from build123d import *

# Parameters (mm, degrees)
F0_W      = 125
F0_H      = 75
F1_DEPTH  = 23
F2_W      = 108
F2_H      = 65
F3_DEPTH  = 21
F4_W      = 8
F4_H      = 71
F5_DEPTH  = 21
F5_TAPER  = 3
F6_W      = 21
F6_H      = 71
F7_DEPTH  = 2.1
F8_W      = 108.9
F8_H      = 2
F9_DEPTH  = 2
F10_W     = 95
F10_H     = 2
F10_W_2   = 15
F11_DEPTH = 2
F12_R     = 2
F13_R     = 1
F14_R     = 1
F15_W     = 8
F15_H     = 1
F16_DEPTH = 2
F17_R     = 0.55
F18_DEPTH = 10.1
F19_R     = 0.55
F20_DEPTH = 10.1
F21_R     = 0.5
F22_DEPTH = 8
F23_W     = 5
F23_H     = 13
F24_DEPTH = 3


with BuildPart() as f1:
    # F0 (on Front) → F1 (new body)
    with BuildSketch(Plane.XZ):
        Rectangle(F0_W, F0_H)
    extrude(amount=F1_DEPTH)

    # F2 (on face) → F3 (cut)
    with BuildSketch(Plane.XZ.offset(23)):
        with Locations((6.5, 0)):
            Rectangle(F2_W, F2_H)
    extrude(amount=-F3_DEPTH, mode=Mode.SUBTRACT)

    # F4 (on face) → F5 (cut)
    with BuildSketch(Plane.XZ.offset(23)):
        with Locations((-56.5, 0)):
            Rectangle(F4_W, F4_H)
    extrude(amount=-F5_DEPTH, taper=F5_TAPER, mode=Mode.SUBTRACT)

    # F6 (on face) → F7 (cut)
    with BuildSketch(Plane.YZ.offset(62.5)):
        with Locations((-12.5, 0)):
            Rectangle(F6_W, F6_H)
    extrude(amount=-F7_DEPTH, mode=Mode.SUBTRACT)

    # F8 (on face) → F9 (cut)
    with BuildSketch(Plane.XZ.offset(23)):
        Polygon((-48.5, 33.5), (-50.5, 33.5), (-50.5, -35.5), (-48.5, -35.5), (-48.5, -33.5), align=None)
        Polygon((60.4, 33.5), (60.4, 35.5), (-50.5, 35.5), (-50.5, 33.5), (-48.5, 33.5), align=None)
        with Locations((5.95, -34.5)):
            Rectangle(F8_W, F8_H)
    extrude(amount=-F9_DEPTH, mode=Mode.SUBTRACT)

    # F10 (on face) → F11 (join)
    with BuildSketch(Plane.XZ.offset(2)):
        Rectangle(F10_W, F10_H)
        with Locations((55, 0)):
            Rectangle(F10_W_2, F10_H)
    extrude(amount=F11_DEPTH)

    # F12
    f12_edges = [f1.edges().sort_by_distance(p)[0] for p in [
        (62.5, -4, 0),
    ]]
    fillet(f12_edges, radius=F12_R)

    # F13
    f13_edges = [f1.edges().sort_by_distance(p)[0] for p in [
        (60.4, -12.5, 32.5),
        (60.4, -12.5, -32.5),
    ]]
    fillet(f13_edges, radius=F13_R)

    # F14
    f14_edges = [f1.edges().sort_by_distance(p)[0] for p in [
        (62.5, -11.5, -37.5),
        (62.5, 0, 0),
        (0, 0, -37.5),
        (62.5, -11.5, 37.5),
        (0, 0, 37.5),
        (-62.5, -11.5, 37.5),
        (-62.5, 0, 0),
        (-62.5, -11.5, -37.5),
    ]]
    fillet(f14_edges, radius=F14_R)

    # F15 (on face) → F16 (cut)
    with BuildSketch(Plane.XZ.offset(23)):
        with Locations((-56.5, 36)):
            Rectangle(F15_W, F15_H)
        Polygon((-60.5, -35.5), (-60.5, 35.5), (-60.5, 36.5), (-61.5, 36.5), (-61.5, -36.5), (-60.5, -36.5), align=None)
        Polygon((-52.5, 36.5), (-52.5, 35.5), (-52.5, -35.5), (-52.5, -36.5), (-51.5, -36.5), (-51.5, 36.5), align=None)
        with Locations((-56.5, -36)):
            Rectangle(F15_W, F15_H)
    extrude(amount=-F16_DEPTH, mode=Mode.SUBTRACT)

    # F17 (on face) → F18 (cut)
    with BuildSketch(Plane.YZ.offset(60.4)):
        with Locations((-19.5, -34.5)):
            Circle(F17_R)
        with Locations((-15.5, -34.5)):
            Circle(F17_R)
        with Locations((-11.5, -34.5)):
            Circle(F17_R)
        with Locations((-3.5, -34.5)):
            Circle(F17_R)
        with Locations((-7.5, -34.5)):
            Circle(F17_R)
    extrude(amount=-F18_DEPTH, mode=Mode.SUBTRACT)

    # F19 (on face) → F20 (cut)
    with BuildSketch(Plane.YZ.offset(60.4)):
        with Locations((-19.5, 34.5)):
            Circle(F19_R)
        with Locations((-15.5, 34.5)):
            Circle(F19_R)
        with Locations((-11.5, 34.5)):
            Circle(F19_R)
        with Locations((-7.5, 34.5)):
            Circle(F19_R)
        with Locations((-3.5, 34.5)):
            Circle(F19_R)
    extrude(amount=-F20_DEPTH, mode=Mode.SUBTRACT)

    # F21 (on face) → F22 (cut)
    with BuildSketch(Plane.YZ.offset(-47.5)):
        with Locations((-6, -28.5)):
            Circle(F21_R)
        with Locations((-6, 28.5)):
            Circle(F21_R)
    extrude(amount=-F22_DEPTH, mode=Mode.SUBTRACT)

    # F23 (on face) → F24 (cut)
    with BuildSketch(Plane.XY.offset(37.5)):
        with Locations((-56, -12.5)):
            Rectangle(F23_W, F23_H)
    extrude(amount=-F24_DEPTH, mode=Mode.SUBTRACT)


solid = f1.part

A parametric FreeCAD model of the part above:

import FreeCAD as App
import Part
import Sketcher

V = App.Vector
Q = App.Units.Quantity


def edges_at(feature, points):
    """Names of the edges that pass closest to the given points."""
    edges = feature.Shape.Edges
    near = lambda p: min(range(len(edges)), key=lambda i: edges[i].distToShape(Part.Vertex(*p))[0])
    return sorted({f"Edge{near(p) + 1}" for p in points})

doc = App.newDocument("Part")
body = doc.addObject("PartDesign::Body", "Body")

# Sketch on XZ plane
sketch1 = body.newObject("Sketcher::SketchObject", "Sketch")
sketch1.AttachmentSupport = (doc.getObject("XZ_Plane"), [""])
sketch1.MapMode = "FlatFace"
sketch1.addGeometry(Part.LineSegment(V(-62, 38, 0), V(-62, -38, 0)), False)
sketch1.addGeometry(Part.LineSegment(V(-62, -38, 0), V(62, -38, 0)), False)
sketch1.addGeometry(Part.LineSegment(V(62, -38, 0), V(62, 38, 0)), False)
sketch1.addGeometry(Part.LineSegment(V(62, 38, 0), V(-62, 38, 0)), False)
sketch1.addConstraint(Sketcher.Constraint("Coincident", 0, 2, 1, 1))
sketch1.addConstraint(Sketcher.Constraint("Coincident", 1, 2, 2, 1))
sketch1.addConstraint(Sketcher.Constraint("Coincident", 2, 2, 3, 1))
sketch1.addConstraint(Sketcher.Constraint("Coincident", 3, 2, 0, 1))
sketch1.addConstraint(Sketcher.Constraint("Vertical", 0))
sketch1.addConstraint(Sketcher.Constraint("Horizontal", 1))
sketch1.addConstraint(Sketcher.Constraint("Vertical", 2))
sketch1.addConstraint(Sketcher.Constraint("Horizontal", 3))
sketch1.addConstraint(Sketcher.Constraint("Symmetric", 0, 2, 2, 2, -1, 1))
sketch1.addConstraint(Sketcher.Constraint("DistanceX", 1, 1, 1, 2, Q("125 mm")))
sketch1.addConstraint(Sketcher.Constraint("DistanceY", 0, 2, 0, 1, Q("75 mm")))
pad1 = body.newObject("PartDesign::Pad", "Pad")
pad1.Profile = sketch1
pad1.Length = 23

# Sketch on XZ plane
sketch2 = body.newObject("Sketcher::SketchObject", "Sketch001")
sketch2.AttachmentSupport = (doc.getObject("XZ_Plane"), [""])
sketch2.MapMode = "FlatFace"
sketch2.AttachmentOffset = App.Placement(V(0, 0, 23), App.Rotation())
sketch2.addGeometry(Part.LineSegment(V(-48, 32, 0), V(-48, -32, 0)), False)
sketch2.addGeometry(Part.LineSegment(V(-48, -32, 0), V(60, -32, 0)), False)
sketch2.addGeometry(Part.LineSegment(V(60, -32, 0), V(60, 32, 0)), False)
sketch2.addGeometry(Part.LineSegment(V(60, 32, 0), V(-48, 32, 0)), False)
sketch2.addConstraint(Sketcher.Constraint("Coincident", 0, 2, 1, 1))
sketch2.addConstraint(Sketcher.Constraint("Coincident", 1, 2, 2, 1))
sketch2.addConstraint(Sketcher.Constraint("Coincident", 2, 2, 3, 1))
sketch2.addConstraint(Sketcher.Constraint("Coincident", 3, 2, 0, 1))
sketch2.addConstraint(Sketcher.Constraint("Vertical", 0))
sketch2.addConstraint(Sketcher.Constraint("Horizontal", 1))
sketch2.addConstraint(Sketcher.Constraint("Vertical", 2))
sketch2.addConstraint(Sketcher.Constraint("Horizontal", 3))
sketch2.addConstraint(Sketcher.Constraint("DistanceX", 1, 1, 1, 2, Q("108 mm")))
sketch2.addConstraint(Sketcher.Constraint("DistanceY", 0, 2, 0, 1, Q("65 mm")))
sketch2.addConstraint(Sketcher.Constraint("DistanceX", 0, 2, -1, 1, Q("47.5 mm")))
sketch2.addConstraint(Sketcher.Constraint("DistanceY", 0, 2, -1, 1, Q("32.5 mm")))
pocket1 = body.newObject("PartDesign::Pocket", "Pocket")
pocket1.Profile = sketch2
pocket1.Length = 21

# Sketch on XZ plane
sketch3 = body.newObject("Sketcher::SketchObject", "Sketch002")
sketch3.AttachmentSupport = (doc.getObject("XZ_Plane"), [""])
sketch3.MapMode = "FlatFace"
sketch3.AttachmentOffset = App.Placement(V(0, 0, 23), App.Rotation())
sketch3.addGeometry(Part.LineSegment(V(-60, 36, 0), V(-60, -36, 0)), False)
sketch3.addGeometry(Part.LineSegment(V(-60, -36, 0), V(-52, -36, 0)), False)
sketch3.addGeometry(Part.LineSegment(V(-52, -36, 0), V(-52, 36, 0)), False)
sketch3.addGeometry(Part.LineSegment(V(-52, 36, 0), V(-60, 36, 0)), False)
sketch3.addConstraint(Sketcher.Constraint("Coincident", 0, 2, 1, 1))
sketch3.addConstraint(Sketcher.Constraint("Coincident", 1, 2, 2, 1))
sketch3.addConstraint(Sketcher.Constraint("Coincident", 2, 2, 3, 1))
sketch3.addConstraint(Sketcher.Constraint("Coincident", 3, 2, 0, 1))
sketch3.addConstraint(Sketcher.Constraint("Vertical", 0))
sketch3.addConstraint(Sketcher.Constraint("Horizontal", 1))
sketch3.addConstraint(Sketcher.Constraint("Vertical", 2))
sketch3.addConstraint(Sketcher.Constraint("Horizontal", 3))
sketch3.addConstraint(Sketcher.Constraint("DistanceX", 1, 1, 1, 2, Q("8 mm")))
sketch3.addConstraint(Sketcher.Constraint("DistanceY", 0, 2, 0, 1, Q("71 mm")))
sketch3.addConstraint(Sketcher.Constraint("DistanceX", 0, 2, -1, 1, Q("60.5 mm")))
sketch3.addConstraint(Sketcher.Constraint("DistanceY", 0, 2, -1, 1, Q("35.5 mm")))
pocket2 = body.newObject("PartDesign::Pocket", "Pocket001")
pocket2.Profile = sketch3
pocket2.Length = 21
pocket2.TaperAngle = -3

# Sketch on YZ plane
sketch4 = body.newObject("Sketcher::SketchObject", "Sketch003")
sketch4.AttachmentSupport = (doc.getObject("YZ_Plane"), [""])
sketch4.MapMode = "FlatFace"
sketch4.AttachmentOffset = App.Placement(V(0, 0, 62.5), App.Rotation())
sketch4.addGeometry(Part.LineSegment(V(-23, 36, 0), V(-23, -36, 0)), False)
sketch4.addGeometry(Part.LineSegment(V(-23, -36, 0), V(-2, -36, 0)), False)
sketch4.addGeometry(Part.LineSegment(V(-2, -36, 0), V(-2, 36, 0)), False)
sketch4.addGeometry(Part.LineSegment(V(-2, 36, 0), V(-23, 36, 0)), False)
sketch4.addConstraint(Sketcher.Constraint("Coincident", 0, 2, 1, 1))
sketch4.addConstraint(Sketcher.Constraint("Coincident", 1, 2, 2, 1))
sketch4.addConstraint(Sketcher.Constraint("Coincident", 2, 2, 3, 1))
sketch4.addConstraint(Sketcher.Constraint("Coincident", 3, 2, 0, 1))
sketch4.addConstraint(Sketcher.Constraint("Vertical", 0))
sketch4.addConstraint(Sketcher.Constraint("Horizontal", 1))
sketch4.addConstraint(Sketcher.Constraint("Vertical", 2))
sketch4.addConstraint(Sketcher.Constraint("Horizontal", 3))
sketch4.addConstraint(Sketcher.Constraint("DistanceX", 1, 1, 1, 2, Q("21 mm")))
sketch4.addConstraint(Sketcher.Constraint("DistanceY", 0, 2, 0, 1, Q("71 mm")))
sketch4.addConstraint(Sketcher.Constraint("DistanceX", 0, 2, -1, 1, Q("23 mm")))
sketch4.addConstraint(Sketcher.Constraint("DistanceY", 0, 2, -1, 1, Q("35.5 mm")))
pocket3 = body.newObject("PartDesign::Pocket", "Pocket002")
pocket3.Profile = sketch4
pocket3.Length = 2.1

# Sketch on XZ plane
sketch5 = body.newObject("Sketcher::SketchObject", "Sketch004")
sketch5.AttachmentSupport = (doc.getObject("XZ_Plane"), [""])
sketch5.MapMode = "FlatFace"
sketch5.AttachmentOffset = App.Placement(V(0, 0, 23), App.Rotation())
sketch5.addGeometry(Part.LineSegment(V(-50.5, -35.5, 0), V(60.4, -35.5, 0)), False)
sketch5.addGeometry(Part.LineSegment(V(60.4, -35.5, 0), V(60.4, -33.5, 0)), False)
sketch5.addGeometry(Part.LineSegment(V(60.4, -33.5, 0), V(-48.5, -33.5, 0)), False)
sketch5.addGeometry(Part.LineSegment(V(-48.5, -33.5, 0), V(-48.5, 33.5, 0)), False)
sketch5.addGeometry(Part.LineSegment(V(-48.5, 33.5, 0), V(60.4, 33.5, 0)), False)
sketch5.addGeometry(Part.LineSegment(V(60.4, 33.5, 0), V(60.4, 35.5, 0)), False)
sketch5.addGeometry(Part.LineSegment(V(60.4, 35.5, 0), V(-50.5, 35.5, 0)), False)
sketch5.addGeometry(Part.LineSegment(V(-50.5, 35.5, 0), V(-50.5, -35.5, 0)), False)
sketch5.addConstraint(Sketcher.Constraint("Coincident", 0, 2, 1, 1))
sketch5.addConstraint(Sketcher.Constraint("Coincident", 1, 2, 2, 1))
sketch5.addConstraint(Sketcher.Constraint("Coincident", 2, 2, 3, 1))
sketch5.addConstraint(Sketcher.Constraint("Coincident", 3, 2, 4, 1))
sketch5.addConstraint(Sketcher.Constraint("Coincident", 4, 2, 5, 1))
sketch5.addConstraint(Sketcher.Constraint("Coincident", 5, 2, 6, 1))
sketch5.addConstraint(Sketcher.Constraint("Coincident", 6, 2, 7, 1))
sketch5.addConstraint(Sketcher.Constraint("Coincident", 7, 2, 0, 1))
sketch5.addConstraint(Sketcher.Constraint("Horizontal", 0))
sketch5.addConstraint(Sketcher.Constraint("Vertical", 1))
sketch5.addConstraint(Sketcher.Constraint("Horizontal", 2))
sketch5.addConstraint(Sketcher.Constraint("Vertical", 3))
sketch5.addConstraint(Sketcher.Constraint("Horizontal", 4))
sketch5.addConstraint(Sketcher.Constraint("Vertical", 5))
sketch5.addConstraint(Sketcher.Constraint("Horizontal", 6))
sketch5.addConstraint(Sketcher.Constraint("Vertical", 7))
sketch5.addConstraint(Sketcher.Constraint("Symmetric", 1, 2, 4, 2, -1))
sketch5.addConstraint(Sketcher.Constraint("Equal", 1, 5))
sketch5.addConstraint(Sketcher.Constraint("DistanceY", 1, 1, 1, 2, Q("2 mm")))
sketch5.addConstraint(Sketcher.Constraint("DistanceY", 3, 1, 3, 2, Q("67 mm")))
sketch5.addConstraint(Sketcher.Constraint("DistanceX", 0, 1, 0, 2, Q("110.9 mm")))
sketch5.addConstraint(Sketcher.Constraint("DistanceX", 2, 2, 2, 1, Q("108.9 mm")))
sketch5.addConstraint(Sketcher.Constraint("DistanceX", -1, 1, 0, 2, Q("60.4 mm")))
pocket4 = body.newObject("PartDesign::Pocket", "Pocket003")
pocket4.Profile = sketch5
pocket4.Length = 2

# Sketch on XZ plane
sketch6 = body.newObject("Sketcher::SketchObject", "Sketch005")
sketch6.AttachmentSupport = (doc.getObject("XZ_Plane"), [""])
sketch6.MapMode = "FlatFace"
sketch6.AttachmentOffset = App.Placement(V(0, 0, 2), App.Rotation())
sketch6.addGeometry(Part.LineSegment(V(-47.5, 1, 0), V(-47.5, -1, 0)), False)
sketch6.addGeometry(Part.LineSegment(V(-47.5, -1, 0), V(62.5, -1, 0)), False)
sketch6.addGeometry(Part.LineSegment(V(62.5, -1, 0), V(62.5, 1, 0)), False)
sketch6.addGeometry(Part.LineSegment(V(62.5, 1, 0), V(-47.5, 1, 0)), False)
sketch6.addConstraint(Sketcher.Constraint("Coincident", 0, 2, 1, 1))
sketch6.addConstraint(Sketcher.Constraint("Coincident", 1, 2, 2, 1))
sketch6.addConstraint(Sketcher.Constraint("Coincident", 2, 2, 3, 1))
sketch6.addConstraint(Sketcher.Constraint("Coincident", 3, 2, 0, 1))
sketch6.addConstraint(Sketcher.Constraint("Vertical", 0))
sketch6.addConstraint(Sketcher.Constraint("Horizontal", 1))
sketch6.addConstraint(Sketcher.Constraint("Vertical", 2))
sketch6.addConstraint(Sketcher.Constraint("Horizontal", 3))
sketch6.addConstraint(Sketcher.Constraint("DistanceX", 1, 1, 1, 2, Q("110 mm")))
sketch6.addConstraint(Sketcher.Constraint("DistanceY", 0, 2, 0, 1, Q("2 mm")))
sketch6.addConstraint(Sketcher.Constraint("DistanceY", 0, 2, -1, 1, Q("1 mm")))
sketch6.addConstraint(Sketcher.Constraint("DistanceX", 0, 2, -1, 1, Q("47.5 mm")))
pad2 = body.newObject("PartDesign::Pad", "Pad001")
pad2.Profile = sketch6
pad2.Length = 2
doc.recompute()

fillet = body.newObject("PartDesign::Fillet", "Fillet")
fillet.Base = (pad2, edges_at(pad2, [(62.5, -4, 0)]))
fillet.Radius = 2
doc.recompute()

fillet2 = body.newObject("PartDesign::Fillet", "Fillet001")
fillet2.Base = (fillet, edges_at(fillet, [(60.4, -12.5, 32.5), (60.4, -12.5, -32.5)]))
fillet2.Radius = 1
doc.recompute()

fillet3 = body.newObject("PartDesign::Fillet", "Fillet002")
fillet3.Base = (fillet2, edges_at(fillet2, [
    (62.5, -11.5, -37.5),
    (62.5, 0, 0),
    (0, 0, -37.5),
    (62.5, -11.5, 37.5),
    (0, 0, 37.5),
    (-62.5, -11.5, 37.5),
    (-62.5, 0, 0),
    (-62.5, -11.5, -37.5),
]))
fillet3.Radius = 1

# Sketch on XZ plane
sketch7 = body.newObject("Sketcher::SketchObject", "Sketch006")
sketch7.AttachmentSupport = (doc.getObject("XZ_Plane"), [""])
sketch7.MapMode = "FlatFace"
sketch7.AttachmentOffset = App.Placement(V(0, 0, 23), App.Rotation())
sketch7.addGeometry(Part.LineSegment(V(-52, -36, 0), V(-52, 36, 0)), False)
sketch7.addGeometry(Part.LineSegment(V(-52, 36, 0), V(-62, 36, 0)), False)
sketch7.addGeometry(Part.LineSegment(V(-62, 36, 0), V(-62, -36, 0)), False)
sketch7.addGeometry(Part.LineSegment(V(-62, -36, 0), V(-52, -36, 0)), False)
sketch7.addGeometry(Part.LineSegment(V(-60, 36, 0), V(-52, 36, 0)), False)
sketch7.addGeometry(Part.LineSegment(V(-52, 36, 0), V(-52, -36, 0)), False)
sketch7.addGeometry(Part.LineSegment(V(-52, -36, 0), V(-60, -36, 0)), False)
sketch7.addGeometry(Part.LineSegment(V(-60, -36, 0), V(-60, 36, 0)), False)
sketch7.addConstraint(Sketcher.Constraint("Coincident", 0, 2, 1, 1))
sketch7.addConstraint(Sketcher.Constraint("Coincident", 1, 2, 2, 1))
sketch7.addConstraint(Sketcher.Constraint("Coincident", 2, 2, 3, 1))
sketch7.addConstraint(Sketcher.Constraint("Coincident", 3, 2, 0, 1))
sketch7.addConstraint(Sketcher.Constraint("Coincident", 4, 2, 5, 1))
sketch7.addConstraint(Sketcher.Constraint("Coincident", 5, 2, 6, 1))
sketch7.addConstraint(Sketcher.Constraint("Coincident", 6, 2, 7, 1))
sketch7.addConstraint(Sketcher.Constraint("Coincident", 7, 2, 4, 1))
sketch7.addConstraint(Sketcher.Constraint("Vertical", 0))
sketch7.addConstraint(Sketcher.Constraint("Horizontal", 1))
sketch7.addConstraint(Sketcher.Constraint("Vertical", 2))
sketch7.addConstraint(Sketcher.Constraint("Horizontal", 3))
sketch7.addConstraint(Sketcher.Constraint("Horizontal", 4))
sketch7.addConstraint(Sketcher.Constraint("Vertical", 5))
sketch7.addConstraint(Sketcher.Constraint("Horizontal", 6))
sketch7.addConstraint(Sketcher.Constraint("Vertical", 7))
sketch7.addConstraint(Sketcher.Constraint("DistanceX", 1, 2, 1, 1, Q("10 mm")))
sketch7.addConstraint(Sketcher.Constraint("DistanceX", 4, 1, 4, 2, Q("8 mm")))
sketch7.addConstraint(Sketcher.Constraint("DistanceY", 0, 1, 0, 2, Q("73 mm")))
sketch7.addConstraint(Sketcher.Constraint("DistanceY", 5, 2, 5, 1, Q("71 mm")))
sketch7.addConstraint(Sketcher.Constraint("DistanceX", 4, 2, 0, 2, Q("1 mm")))
sketch7.addConstraint(Sketcher.Constraint("DistanceY", 4, 2, 0, 2, Q("1 mm")))
sketch7.addConstraint(Sketcher.Constraint("DistanceX", 0, 2, -1, 1, Q("51.5 mm")))
sketch7.addConstraint(Sketcher.Constraint("DistanceY", -1, 1, 0, 2, Q("36.5 mm")))
pocket5 = body.newObject("PartDesign::Pocket", "Pocket004")
pocket5.Profile = sketch7
pocket5.Length = 2

# Sketch on YZ plane
sketch8 = body.newObject("Sketcher::SketchObject", "Sketch007")
sketch8.AttachmentSupport = (doc.getObject("YZ_Plane"), [""])
sketch8.MapMode = "FlatFace"
sketch8.AttachmentOffset = App.Placement(V(0, 0, 60.4), App.Rotation())
sketch8.addGeometry(Part.Circle(V(-19.5, -34.5, 0), V(0, 0, 1), 0.6), False)
sketch8.addGeometry(Part.Circle(V(-15.5, -34.5, 0), V(0, 0, 1), 0.6), False)
sketch8.addGeometry(Part.Circle(V(-11.5, -34.5, 0), V(0, 0, 1), 0.6), False)
sketch8.addGeometry(Part.Circle(V(-3.5, -34.5, 0), V(0, 0, 1), 0.6), False)
sketch8.addGeometry(Part.Circle(V(-7.5, -34.5, 0), V(0, 0, 1), 0.6), False)
sketch8.addConstraint(Sketcher.Constraint("Equal", 0, 1))
sketch8.addConstraint(Sketcher.Constraint("Equal", 1, 2))
sketch8.addConstraint(Sketcher.Constraint("Equal", 2, 3))
sketch8.addConstraint(Sketcher.Constraint("Equal", 3, 4))
sketch8.addConstraint(Sketcher.Constraint("Horizontal", 0, 3, 1, 3))
sketch8.addConstraint(Sketcher.Constraint("Horizontal", 1, 3, 2, 3))
sketch8.addConstraint(Sketcher.Constraint("Horizontal", 2, 3, 3, 3))
sketch8.addConstraint(Sketcher.Constraint("Horizontal", 3, 3, 4, 3))
sketch8.addConstraint(Sketcher.Constraint("Diameter", 0, Q("1.1 mm")))
sketch8.addConstraint(Sketcher.Constraint("DistanceX", 0, 3, 1, 3, Q("4 mm")))
sketch8.addConstraint(Sketcher.Constraint("DistanceX", 1, 3, 2, 3, Q("4 mm")))
sketch8.addConstraint(Sketcher.Constraint("DistanceX", 2, 3, 3, 3, Q("8 mm")))
sketch8.addConstraint(Sketcher.Constraint("DistanceX", 2, 3, 4, 3, Q("4 mm")))
sketch8.addConstraint(Sketcher.Constraint("DistanceX", 0, 3, -1, 1, Q("19.5 mm")))
sketch8.addConstraint(Sketcher.Constraint("DistanceY", 0, 3, -1, 1, Q("34.5 mm")))
pocket6 = body.newObject("PartDesign::Pocket", "Pocket005")
pocket6.Profile = sketch8
pocket6.Length = 10.1

# Sketch on YZ plane
sketch9 = body.newObject("Sketcher::SketchObject", "Sketch008")
sketch9.AttachmentSupport = (doc.getObject("YZ_Plane"), [""])
sketch9.MapMode = "FlatFace"
sketch9.AttachmentOffset = App.Placement(V(0, 0, 60.4), App.Rotation())
sketch9.addGeometry(Part.Circle(V(-19.5, 34.5, 0), V(0, 0, 1), 0.6), False)
sketch9.addGeometry(Part.Circle(V(-15.5, 34.5, 0), V(0, 0, 1), 0.6), False)
sketch9.addGeometry(Part.Circle(V(-11.5, 34.5, 0), V(0, 0, 1), 0.6), False)
sketch9.addGeometry(Part.Circle(V(-7.5, 34.5, 0), V(0, 0, 1), 0.6), False)
sketch9.addGeometry(Part.Circle(V(-3.5, 34.5, 0), V(0, 0, 1), 0.6), False)
sketch9.addConstraint(Sketcher.Constraint("Equal", 0, 1))
sketch9.addConstraint(Sketcher.Constraint("Equal", 1, 2))
sketch9.addConstraint(Sketcher.Constraint("Equal", 2, 3))
sketch9.addConstraint(Sketcher.Constraint("Equal", 3, 4))
sketch9.addConstraint(Sketcher.Constraint("Horizontal", 0, 3, 1, 3))
sketch9.addConstraint(Sketcher.Constraint("Horizontal", 1, 3, 2, 3))
sketch9.addConstraint(Sketcher.Constraint("Horizontal", 2, 3, 3, 3))
sketch9.addConstraint(Sketcher.Constraint("Horizontal", 3, 3, 4, 3))
sketch9.addConstraint(Sketcher.Constraint("Diameter", 0, Q("1.1 mm")))
sketch9.addConstraint(Sketcher.Constraint("DistanceX", 0, 3, 1, 3, Q("4 mm")))
sketch9.addConstraint(Sketcher.Constraint("DistanceX", 1, 3, 2, 3, Q("4 mm")))
sketch9.addConstraint(Sketcher.Constraint("DistanceX", 2, 3, 3, 3, Q("4 mm")))
sketch9.addConstraint(Sketcher.Constraint("DistanceX", 3, 3, 4, 3, Q("4 mm")))
sketch9.addConstraint(Sketcher.Constraint("DistanceX", 0, 3, -1, 1, Q("19.5 mm")))
sketch9.addConstraint(Sketcher.Constraint("DistanceY", -1, 1, 0, 3, Q("34.5 mm")))
pocket7 = body.newObject("PartDesign::Pocket", "Pocket006")
pocket7.Profile = sketch9
pocket7.Length = 10.1

# Sketch on YZ plane
sketch10 = body.newObject("Sketcher::SketchObject", "Sketch009")
sketch10.AttachmentSupport = (doc.getObject("YZ_Plane"), [""])
sketch10.MapMode = "FlatFace"
sketch10.AttachmentOffset = App.Placement(V(0, 0, -47.5), App.Rotation())
sketch10.addGeometry(Part.Circle(V(-6, -28.5, 0), V(0, 0, 1), 0.5), False)
sketch10.addGeometry(Part.Circle(V(-6, 28.5, 0), V(0, 0, 1), 0.5), False)
sketch10.addConstraint(Sketcher.Constraint("Equal", 0, 1))
sketch10.addConstraint(Sketcher.Constraint("Symmetric", 0, 3, 1, 3, -1))
sketch10.addConstraint(Sketcher.Constraint("Diameter", 0, Q("1 mm")))
sketch10.addConstraint(Sketcher.Constraint("DistanceX", 0, 3, -1, 1, Q("6 mm")))
sketch10.addConstraint(Sketcher.Constraint("DistanceY", 0, 3, 1, 3, Q("57 mm")))
pocket8 = body.newObject("PartDesign::Pocket", "Pocket007")
pocket8.Profile = sketch10
pocket8.Length = 8

# Sketch on XY plane
sketch11 = body.newObject("Sketcher::SketchObject", "Sketch010")
sketch11.AttachmentSupport = (doc.getObject("XY_Plane"), [""])
sketch11.MapMode = "FlatFace"
sketch11.AttachmentOffset = App.Placement(V(0, 0, 37.5), App.Rotation())
sketch11.addGeometry(Part.LineSegment(V(-58, -6, 0), V(-58, -19, 0)), False)
sketch11.addGeometry(Part.LineSegment(V(-58, -19, 0), V(-54, -19, 0)), False)
sketch11.addGeometry(Part.LineSegment(V(-54, -19, 0), V(-54, -6, 0)), False)
sketch11.addGeometry(Part.LineSegment(V(-54, -6, 0), V(-58, -6, 0)), False)
sketch11.addConstraint(Sketcher.Constraint("Coincident", 0, 2, 1, 1))
sketch11.addConstraint(Sketcher.Constraint("Coincident", 1, 2, 2, 1))
sketch11.addConstraint(Sketcher.Constraint("Coincident", 2, 2, 3, 1))
sketch11.addConstraint(Sketcher.Constraint("Coincident", 3, 2, 0, 1))
sketch11.addConstraint(Sketcher.Constraint("Vertical", 0))
sketch11.addConstraint(Sketcher.Constraint("Horizontal", 1))
sketch11.addConstraint(Sketcher.Constraint("Vertical", 2))
sketch11.addConstraint(Sketcher.Constraint("Horizontal", 3))
sketch11.addConstraint(Sketcher.Constraint("DistanceX", 1, 1, 1, 2, Q("5 mm")))
sketch11.addConstraint(Sketcher.Constraint("DistanceY", 0, 2, 0, 1, Q("13 mm")))
sketch11.addConstraint(Sketcher.Constraint("DistanceY", 0, 2, -1, 1, Q("19 mm")))
sketch11.addConstraint(Sketcher.Constraint("DistanceX", 0, 2, -1, 1, Q("58.5 mm")))
pocket9 = body.newObject("PartDesign::Pocket", "Pocket008")
pocket9.Profile = sketch11
pocket9.Length = 3

doc.recompute()
